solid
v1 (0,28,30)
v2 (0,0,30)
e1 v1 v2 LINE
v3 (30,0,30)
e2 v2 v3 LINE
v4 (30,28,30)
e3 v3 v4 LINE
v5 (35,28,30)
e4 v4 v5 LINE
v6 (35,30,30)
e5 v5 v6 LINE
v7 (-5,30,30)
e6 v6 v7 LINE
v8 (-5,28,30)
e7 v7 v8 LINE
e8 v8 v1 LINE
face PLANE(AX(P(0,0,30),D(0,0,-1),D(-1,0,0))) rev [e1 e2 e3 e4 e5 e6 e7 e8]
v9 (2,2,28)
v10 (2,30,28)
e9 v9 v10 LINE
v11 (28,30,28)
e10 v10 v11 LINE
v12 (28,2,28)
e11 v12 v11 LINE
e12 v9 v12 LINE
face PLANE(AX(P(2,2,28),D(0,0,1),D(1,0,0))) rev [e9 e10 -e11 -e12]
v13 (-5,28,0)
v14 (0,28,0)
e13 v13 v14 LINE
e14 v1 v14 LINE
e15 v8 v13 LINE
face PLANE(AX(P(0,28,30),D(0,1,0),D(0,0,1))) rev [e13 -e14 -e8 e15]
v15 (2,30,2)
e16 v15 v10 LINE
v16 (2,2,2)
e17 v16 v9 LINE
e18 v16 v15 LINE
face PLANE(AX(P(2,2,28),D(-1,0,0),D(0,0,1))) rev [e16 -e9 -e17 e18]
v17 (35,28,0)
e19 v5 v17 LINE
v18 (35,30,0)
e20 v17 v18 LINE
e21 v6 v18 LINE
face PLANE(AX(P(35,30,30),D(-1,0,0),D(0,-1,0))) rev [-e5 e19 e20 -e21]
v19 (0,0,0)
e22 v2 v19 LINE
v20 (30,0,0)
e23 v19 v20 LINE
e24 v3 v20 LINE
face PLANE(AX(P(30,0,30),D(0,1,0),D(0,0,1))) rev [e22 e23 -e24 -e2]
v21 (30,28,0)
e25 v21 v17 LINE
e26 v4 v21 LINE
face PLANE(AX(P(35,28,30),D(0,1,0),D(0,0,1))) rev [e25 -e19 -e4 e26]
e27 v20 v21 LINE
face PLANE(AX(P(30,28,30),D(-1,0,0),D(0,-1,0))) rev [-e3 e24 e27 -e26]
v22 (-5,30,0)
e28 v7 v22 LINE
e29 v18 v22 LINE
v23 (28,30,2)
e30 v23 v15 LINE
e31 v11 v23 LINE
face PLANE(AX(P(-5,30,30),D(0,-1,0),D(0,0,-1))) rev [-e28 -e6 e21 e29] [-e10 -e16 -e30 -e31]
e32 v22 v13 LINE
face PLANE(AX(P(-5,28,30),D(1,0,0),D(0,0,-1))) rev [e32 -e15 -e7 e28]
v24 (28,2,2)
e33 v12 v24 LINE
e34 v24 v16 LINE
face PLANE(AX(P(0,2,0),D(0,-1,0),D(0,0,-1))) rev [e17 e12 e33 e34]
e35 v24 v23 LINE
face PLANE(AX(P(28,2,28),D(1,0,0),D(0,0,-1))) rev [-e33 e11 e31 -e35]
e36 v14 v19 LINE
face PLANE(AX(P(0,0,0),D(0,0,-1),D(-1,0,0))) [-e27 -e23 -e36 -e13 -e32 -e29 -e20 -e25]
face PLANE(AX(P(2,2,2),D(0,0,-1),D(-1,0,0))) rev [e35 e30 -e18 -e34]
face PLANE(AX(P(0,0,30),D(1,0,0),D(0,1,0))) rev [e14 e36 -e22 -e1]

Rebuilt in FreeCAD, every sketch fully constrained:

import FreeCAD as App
import Part
import Sketcher
from FreeCAD import Vector


def add_polygon(sketch, points):
    """Adds a closed chain of lines whose ends are joined by coincident constraints."""
    first, n = sketch.GeometryCount, len(points)
    for a, b in zip(points, points[1:] + points[:1]):
        sketch.addGeometry(Part.LineSegment(App.Vector(*a, 0), App.Vector(*b, 0)), False)
    for i in range(n):
        sketch.addConstraint(Sketcher.Constraint("Coincident", first + i, 2, first + (i + 1) % n, 1))

doc = App.newDocument("Part")
body = doc.addObject("PartDesign::Body", "Body")

sketch1 = body.newObject("Sketcher::SketchObject", "Sketch")
sketch1.AttachmentSupport = (doc.getObject("XY_Plane"), [""])
sketch1.MapMode = "FlatFace"
add_polygon(sketch1, [(0, 28), (0, 0), (30, 0), (30, 28), (35, 28), (35, 30), (-5, 30), (-5, 28)])
sketch1.addConstraint([
    Sketcher.Constraint("Vertical", 0),
    Sketcher.Constraint("Horizontal", 1),
    Sketcher.Constraint("Vertical", 2),
    Sketcher.Constraint("Horizontal", 3),
    Sketcher.Constraint("Vertical", 4),
    Sketcher.Constraint("Horizontal", 5),
    Sketcher.Constraint("Vertical", 6),
    Sketcher.Constraint("Horizontal", 7),
    Sketcher.Constraint("Coincident", 0, 2, -1, 1),
    Sketcher.Constraint("Horizontal", 3, 2, 6, 2),
    Sketcher.Constraint("Equal", 3, 7),
    Sketcher.Constraint("DistanceX", 1, 1, 1, 2, 30.0),
    Sketcher.Constraint("DistanceX", 3, 1, 3, 2, 5.0),
    Sketcher.Constraint("DistanceY", 0, 2, 0, 1, 28.0),
    Sketcher.Constraint("DistanceY", 4, 1, 4, 2, 2.0),
])
pad1 = body.newObject("PartDesign::Pad", "Pad")
pad1.Profile = sketch1
pad1.Length = 30

sketch2 = body.newObject("Sketcher::SketchObject", "Sketch001")
sketch2.AttachmentSupport = (doc.getObject("XZ_Plane"), [""])
sketch2.MapMode = "FlatFace"
sketch2.AttachmentOffset = App.Placement(Vector(0, 0, -30), App.Rotation())
add_polygon(sketch2, [(2, 2), (2, 28), (28, 28), (28, 2)])
sketch2.addConstraint([
    Sketcher.Constraint("Vertical", 0),
    Sketcher.Constraint("Horizontal", 1),
    Sketcher.Constraint("Vertical", 2),
    Sketcher.Constraint("Horizontal", 3),
    Sketcher.Constraint("Equal", 3, 0),
    Sketcher.Constraint("DistanceX", 1, 1, 1, 2, 26.0),
    Sketcher.Constraint("DistanceX", -1, 1, 0, 2, 2.0),
    Sketcher.Constraint("DistanceY", -1, 1, 0, 2, 28.0),
])
pocket1 = body.newObject("PartDesign::Pocket", "Pocket")
pocket1.Profile = sketch2
pocket1.Length = 28
pocket1.Reversed = True

doc.recompute()
